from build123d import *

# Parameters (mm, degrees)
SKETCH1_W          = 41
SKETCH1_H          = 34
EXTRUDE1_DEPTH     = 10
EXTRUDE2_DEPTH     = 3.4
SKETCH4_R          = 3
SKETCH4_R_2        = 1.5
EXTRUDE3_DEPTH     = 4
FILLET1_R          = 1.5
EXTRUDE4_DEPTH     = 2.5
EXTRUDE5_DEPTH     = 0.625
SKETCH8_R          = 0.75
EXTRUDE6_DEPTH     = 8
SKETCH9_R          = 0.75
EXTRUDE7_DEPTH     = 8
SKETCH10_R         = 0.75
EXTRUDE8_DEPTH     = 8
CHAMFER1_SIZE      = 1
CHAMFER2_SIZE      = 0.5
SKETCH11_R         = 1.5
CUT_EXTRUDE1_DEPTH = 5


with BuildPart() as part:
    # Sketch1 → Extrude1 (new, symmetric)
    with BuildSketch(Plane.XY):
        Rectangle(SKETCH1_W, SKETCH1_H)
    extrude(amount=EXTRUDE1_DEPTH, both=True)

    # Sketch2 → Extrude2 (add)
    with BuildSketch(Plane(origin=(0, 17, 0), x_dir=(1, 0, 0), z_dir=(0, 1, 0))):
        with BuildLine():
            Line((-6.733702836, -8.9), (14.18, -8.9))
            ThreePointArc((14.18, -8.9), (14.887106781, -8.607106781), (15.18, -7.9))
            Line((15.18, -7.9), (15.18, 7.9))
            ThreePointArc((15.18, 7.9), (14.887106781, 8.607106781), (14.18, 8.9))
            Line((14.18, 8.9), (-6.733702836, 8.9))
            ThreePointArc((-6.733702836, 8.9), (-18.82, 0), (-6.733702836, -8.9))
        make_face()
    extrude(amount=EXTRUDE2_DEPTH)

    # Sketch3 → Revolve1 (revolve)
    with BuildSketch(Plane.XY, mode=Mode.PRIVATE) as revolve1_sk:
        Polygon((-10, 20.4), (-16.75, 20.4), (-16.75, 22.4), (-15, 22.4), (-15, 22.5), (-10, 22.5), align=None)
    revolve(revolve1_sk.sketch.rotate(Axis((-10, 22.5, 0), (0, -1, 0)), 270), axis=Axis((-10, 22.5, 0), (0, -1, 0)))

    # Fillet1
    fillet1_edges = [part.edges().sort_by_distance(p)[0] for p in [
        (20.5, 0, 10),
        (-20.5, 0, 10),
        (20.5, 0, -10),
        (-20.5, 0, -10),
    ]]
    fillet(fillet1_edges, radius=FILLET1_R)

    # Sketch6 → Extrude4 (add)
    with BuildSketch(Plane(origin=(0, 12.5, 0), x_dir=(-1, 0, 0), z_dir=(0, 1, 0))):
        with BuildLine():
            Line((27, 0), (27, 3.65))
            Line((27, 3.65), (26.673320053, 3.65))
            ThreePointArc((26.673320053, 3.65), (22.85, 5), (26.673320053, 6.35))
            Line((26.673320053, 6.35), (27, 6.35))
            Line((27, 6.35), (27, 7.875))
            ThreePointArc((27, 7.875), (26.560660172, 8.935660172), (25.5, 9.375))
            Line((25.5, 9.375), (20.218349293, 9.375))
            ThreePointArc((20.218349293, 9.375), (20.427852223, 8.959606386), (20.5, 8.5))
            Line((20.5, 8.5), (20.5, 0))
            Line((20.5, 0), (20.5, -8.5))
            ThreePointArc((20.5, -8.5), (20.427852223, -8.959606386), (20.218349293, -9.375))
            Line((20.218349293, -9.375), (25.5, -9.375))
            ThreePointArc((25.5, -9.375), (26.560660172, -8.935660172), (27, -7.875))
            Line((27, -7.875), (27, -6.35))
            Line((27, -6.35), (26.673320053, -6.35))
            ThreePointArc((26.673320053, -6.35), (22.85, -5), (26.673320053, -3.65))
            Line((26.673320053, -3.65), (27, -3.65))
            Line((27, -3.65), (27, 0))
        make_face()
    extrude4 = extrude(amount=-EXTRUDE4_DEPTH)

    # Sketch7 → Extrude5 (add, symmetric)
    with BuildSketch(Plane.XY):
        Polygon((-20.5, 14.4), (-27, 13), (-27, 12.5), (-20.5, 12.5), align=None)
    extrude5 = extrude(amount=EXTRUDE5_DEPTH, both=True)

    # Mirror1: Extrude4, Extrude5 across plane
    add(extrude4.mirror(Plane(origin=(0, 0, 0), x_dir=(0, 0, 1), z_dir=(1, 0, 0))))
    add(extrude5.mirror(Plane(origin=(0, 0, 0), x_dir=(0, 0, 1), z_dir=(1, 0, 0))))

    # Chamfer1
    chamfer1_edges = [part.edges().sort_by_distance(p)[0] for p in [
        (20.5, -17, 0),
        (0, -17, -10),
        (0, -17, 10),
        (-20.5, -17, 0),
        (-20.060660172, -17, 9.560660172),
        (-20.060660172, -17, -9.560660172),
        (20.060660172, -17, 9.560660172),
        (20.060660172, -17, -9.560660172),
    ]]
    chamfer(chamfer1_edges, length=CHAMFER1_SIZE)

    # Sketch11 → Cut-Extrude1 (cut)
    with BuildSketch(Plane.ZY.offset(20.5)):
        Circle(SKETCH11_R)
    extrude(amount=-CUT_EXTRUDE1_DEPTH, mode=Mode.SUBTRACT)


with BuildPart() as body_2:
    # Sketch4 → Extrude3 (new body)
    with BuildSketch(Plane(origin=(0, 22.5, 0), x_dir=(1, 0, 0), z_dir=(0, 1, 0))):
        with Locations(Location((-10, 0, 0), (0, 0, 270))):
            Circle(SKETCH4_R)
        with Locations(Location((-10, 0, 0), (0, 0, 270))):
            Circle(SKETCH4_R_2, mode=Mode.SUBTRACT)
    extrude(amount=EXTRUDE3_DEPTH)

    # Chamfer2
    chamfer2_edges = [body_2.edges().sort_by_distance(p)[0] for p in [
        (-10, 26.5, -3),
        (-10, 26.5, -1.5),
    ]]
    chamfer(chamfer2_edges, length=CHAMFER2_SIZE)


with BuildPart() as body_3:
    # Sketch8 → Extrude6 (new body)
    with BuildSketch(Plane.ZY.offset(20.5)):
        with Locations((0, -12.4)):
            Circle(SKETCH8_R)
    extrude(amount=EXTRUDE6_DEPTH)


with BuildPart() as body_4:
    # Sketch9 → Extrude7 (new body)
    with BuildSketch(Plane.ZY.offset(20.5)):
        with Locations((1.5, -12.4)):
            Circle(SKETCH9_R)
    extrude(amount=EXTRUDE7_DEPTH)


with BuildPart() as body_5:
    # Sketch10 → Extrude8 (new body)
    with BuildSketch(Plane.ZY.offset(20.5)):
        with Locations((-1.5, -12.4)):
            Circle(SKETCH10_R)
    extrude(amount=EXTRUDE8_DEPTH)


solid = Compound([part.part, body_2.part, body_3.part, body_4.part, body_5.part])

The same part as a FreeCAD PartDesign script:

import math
import FreeCAD as App
import Part
import Sketcher

V = App.Vector
Q = App.Units.Quantity


def edges_at(feature, points):
    """Names of the edges that pass closest to the given points."""
    edges = feature.Shape.Edges
    near = lambda p: min(range(len(edges)), key=lambda i: edges[i].distToShape(Part.Vertex(*p))[0])
    return sorted({f"Edge{near(p) + 1}" for p in points})


def add_polygon(sketch, points):
    """Adds a closed chain of lines whose ends are joined by coincident constraints."""
    first, n = sketch.GeometryCount, len(points)
    for a, b in zip(points, points[1:] + points[:1]):
        sketch.addGeometry(Part.LineSegment(App.Vector(*a, 0), App.Vector(*b, 0)), False)
    for i in range(n):
        sketch.addConstraint(Sketcher.Constraint("Coincident", first + i, 2, first + (i + 1) % n, 1))

doc = App.newDocument("Part")
body = doc.addObject("PartDesign::Body", "Body")

sketch1 = body.newObject("Sketcher::SketchObject", "Sketch")
sketch1.AttachmentSupport = (doc.getObject("XY_Plane"), [""])
sketch1.MapMode = "FlatFace"
add_polygon(sketch1, [(-20, 17), (-20, -17), (20, -17), (20, 17)])
sketch1.addConstraint(Sketcher.Constraint("Vertical", 0))
sketch1.addConstraint(Sketcher.Constraint("Horizontal", 1))
sketch1.addConstraint(Sketcher.Constraint("Vertical", 2))
sketch1.addConstraint(Sketcher.Constraint("Horizontal", 3))
sketch1.addConstraint(Sketcher.Constraint("Symmetric", 0, 2, 2, 2, -1, 1))
sketch1.addConstraint(Sketcher.Constraint("DistanceX", 1, 1, 1, 2, Q("41 mm")))
sketch1.addConstraint(Sketcher.Constraint("DistanceY", 0, 2, 0, 1, Q("34 mm")))
pad1 = body.newObject("PartDesign::Pad", "Pad")
pad1.Profile = sketch1
pad1.Length = 20
pad1.Midplane = True

sketch2 = body.newObject("Sketcher::SketchObject", "Sketch001")
sketch2.AttachmentSupport = (doc.getObject("XZ_Plane"), [""])
sketch2.MapMode = "FlatFace"
sketch2.AttachmentOffset = App.Placement(V(0, 0, -17), App.Rotation())
sketch2.addGeometry(Part.LineSegment(V(-6.7, 8.9, 0), V(14.2, 8.9, 0)), False)
sketch2.addGeometry(Part.ArcOfCircle(Part.Circle(V(14.2, 7.9, 0), V(0, 0, 1), 1), math.radians(0), math.radians(90)), False)
sketch2.addGeometry(Part.LineSegment(V(15.2, 7.9, 0), V(15.2, -7.9, 0)), False)
sketch2.addGeometry(Part.ArcOfCircle(Part.Circle(V(14.2, -7.9, 0), V(0, 0, 1), 1), math.radians(-90), math.radians(0)), False)
sketch2.addGeometry(Part.LineSegment(V(14.2, -8.9, 0), V(-6.7, -8.9, 0)), False)
sketch2.addGeometry(Part.ArcOfCircle(Part.Circle(V(-9.5, 0, 0), V(0, 0, 1), 9.3), math.radians(73), math.radians(287)), False)
sketch2.addConstraint(Sketcher.Constraint("Tangent", 0, 2, 1, 2))
sketch2.addConstraint(Sketcher.Constraint("Tangent", 1, 1, 2, 1))
sketch2.addConstraint(Sketcher.Constraint("Tangent", 2, 2, 3, 2))
sketch2.addConstraint(Sketcher.Constraint("Tangent", 3, 1, 4, 1))
sketch2.addConstraint(Sketcher.Constraint("Coincident", 4, 2, 5, 2))
sketch2.addConstraint(Sketcher.Constraint("Coincident", 5, 1, 0, 1))
sketch2.addConstraint(Sketcher.Constraint("Horizontal", 0))
sketch2.addConstraint(Sketcher.Constraint("Vertical", 2))
sketch2.addConstraint(Sketcher.Constraint("Horizontal", 4))
sketch2.addConstraint(Sketcher.Constraint("Equal", 1, 3))
sketch2.addConstraint(Sketcher.Constraint("Symmetric", 4, 2, 5, 1, -1))
sketch2.addConstraint(Sketcher.Constraint("Radius", 1, Q("1 mm")))
sketch2.addConstraint(Sketcher.Constraint("Radius", 5, Q("9.32 mm")))
sketch2.addConstraint(Sketcher.Constraint("DistanceY", 2, 2, 2, 1, Q("15.8 mm")))
sketch2.addConstraint(Sketcher.Constraint("DistanceX", 5, 3, -1, 1, Q("9.5 mm")))
sketch2.addConstraint(Sketcher.Constraint("DistanceX", -1, 1, 1, 3, Q("14.18 mm")))
pad2 = body.newObject("PartDesign::Pad", "Pad001")
pad2.Profile = sketch2
pad2.Length = 3.4
pad2.Reversed = True

sketch3 = body.newObject("Sketcher::SketchObject", "Sketch002")
sketch3.AttachmentSupport = (doc.getObject("XY_Plane"), [""])
sketch3.MapMode = "FlatFace"
add_polygon(sketch3, [(-16.75, 20.4), (-10, 20.4), (-10, 22.5), (-15, 22.5), (-15, 22.4), (-16.75, 22.4)])
sketch3.addGeometry(Part.LineSegment(V(-10, 22.5, 0), V(-10, 20.4, 0)), True)
sketch3.addConstraint(Sketcher.Constraint("Horizontal", 0))
sketch3.addConstraint(Sketcher.Constraint("Vertical", 1))
sketch3.addConstraint(Sketcher.Constraint("Horizontal", 2))
sketch3.addConstraint(Sketcher.Constraint("Vertical", 3))
sketch3.addConstraint(Sketcher.Constraint("Horizontal", 4))
sketch3.addConstraint(Sketcher.Constraint("Vertical", 5))
sketch3.addConstraint(Sketcher.Constraint("Vertical", 6))
sketch3.addConstraint(Sketcher.Constraint("Coincident", 6, 1, 1, 2))
sketch3.addConstraint(Sketcher.Constraint("Horizontal", 5, 2, 6, 2))
sketch3.addConstraint(Sketcher.Constraint("DistanceX", 2, 2, 2, 1, Q("5 mm")))
sketch3.addConstraint(Sketcher.Constraint("DistanceY", 5, 2, 5, 1, Q("2 mm")))
sketch3.addConstraint(Sketcher.Constraint("DistanceY", 1, 1, 1, 2, Q("2.1 mm")))
sketch3.addConstraint(Sketcher.Constraint("DistanceX", 0, 2, -1, 1, Q("10 mm")))
sketch3.addConstraint(Sketcher.Constraint("DistanceX", 0, 1, 0, 2, Q("6.75 mm")))
sketch3.addConstraint(Sketcher.Constraint("DistanceY", -1, 1, 0, 2, Q("20.4 mm")))
revolution = body.newObject("PartDesign::Revolution", "Revolution")
revolution.Profile = sketch3
revolution.ReferenceAxis = (sketch3, ["Axis0"])
revolution.Angle = 360
doc.recompute()

fillet = body.newObject("PartDesign::Fillet", "Fillet")
fillet.Base = (revolution, edges_at(revolution, [
    (20.5, 0, 10),
    (-20.5, 0, 10),
    (20.5, 0, -10),
    (-20.5, 0, -10),
]))
fillet.Radius = 1.5

sketch4 = body.newObject("Sketcher::SketchObject", "Sketch003")
sketch4.AttachmentSupport = (doc.getObject("XZ_Plane"), [""])
sketch4.MapMode = "FlatFace"
sketch4.AttachmentOffset = App.Placement(V(0, 0, -12.5), App.Rotation())
sketch4.addGeometry(Part.LineSegment(V(-27, 3.65, 0), V(-26.67, 3.65, 0)), False)
sketch4.addGeometry(Part.ArcOfCircle(Part.Circle(V(-25, 5, 0), V(0, 0, 1), 2.15), math.radians(-141), math.radians(141)), False)
sketch4.addGeometry(Part.LineSegment(V(-26.67, 6.35, 0), V(-27, 6.35, 0)), False)
sketch4.addGeometry(Part.LineSegment(V(-27, 6.35, 0), V(-27, 7.88, 0)), False)
sketch4.addGeometry(Part.ArcOfCircle(Part.Circle(V(-25.5, 7.88, 0), V(0, 0, 1), 1.5), math.radians(90), math.radians(180)), False)
sketch4.addGeometry(Part.LineSegment(V(-25.5, 9.38, 0), V(-20.22, 9.38, 0)), False)
sketch4.addGeometry(Part.ArcOfCircle(Part.Circle(V(-19, 8.5, 0), V(0, 0, 1), 1.5), math.radians(144), math.radians(180)), False)
sketch4.addGeometry(Part.LineSegment(V(-20.5, 8.5, 0), V(-20.5, -8.5, 0)), False)
sketch4.addGeometry(Part.ArcOfCircle(Part.Circle(V(-19, -8.5, 0), V(0, 0, 1), 1.5), math.radians(180), math.radians(216)), False)
sketch4.addGeometry(Part.LineSegment(V(-20.22, -9.38, 0), V(-25.5, -9.38, 0)), False)
sketch4.addGeometry(Part.ArcOfCircle(Part.Circle(V(-25.5, -7.88, 0), V(0, 0, 1), 1.5), math.radians(180), math.radians(270)), False)
sketch4.addGeometry(Part.LineSegment(V(-27, -7.88, 0), V(-27, -6.35, 0)), False)
sketch4.addGeometry(Part.LineSegment(V(-27, -6.35, 0), V(-26.67, -6.35, 0)), False)
sketch4.addGeometry(Part.ArcOfCircle(Part.Circle(V(-25, -5, 0), V(0, 0, 1), 2.15), math.radians(-141), math.radians(141)), False)
sketch4.addGeometry(Part.LineSegment(V(-26.67, -3.65, 0), V(-27, -3.65, 0)), False)
sketch4.addGeometry(Part.LineSegment(V(-27, -3.65, 0), V(-27, 3.65, 0)), False)
sketch4.addConstraint(Sketcher.Constraint("Coincident", 0, 2, 1, 1))
sketch4.addConstraint(Sketcher.Constraint("Coincident", 1, 2, 2, 1))
sketch4.addConstraint(Sketcher.Constraint("Coincident", 2, 2, 3, 1))
sketch4.addConstraint(Sketcher.Constraint("Tangent", 3, 2, 4, 2))
sketch4.addConstraint(Sketcher.Constraint("Tangent", 4, 1, 5, 1))
sketch4.addConstraint(Sketcher.Constraint("Coincident", 5, 2, 6, 1))
sketch4.addConstraint(Sketcher.Constraint("Tangent", 6, 2, 7, 1))
sketch4.addConstraint(Sketcher.Constraint("Tangent", 7, 2, 8, 1))
sketch4.addConstraint(Sketcher.Constraint("Coincident", 8, 2, 9, 1))
sketch4.addConstraint(Sketcher.Constraint("Tangent", 9, 2, 10, 2))
sketch4.addConstraint(Sketcher.Constraint("Tangent", 10, 1, 11, 1))
sketch4.addConstraint(Sketcher.Constraint("Coincident", 11, 2, 12, 1))
sketch4.addConstraint(Sketcher.Constraint("Coincident", 12, 2, 13, 1))
sketch4.addConstraint(Sketcher.Constraint("Coincident", 13, 2, 14, 1))
sketch4.addConstraint(Sketcher.Constraint("Coincident", 14, 2, 15, 1))
sketch4.addConstraint(Sketcher.Constraint("Coincident", 15, 2, 0, 1))
sketch4.addConstraint(Sketcher.Constraint("Horizontal", 0))
sketch4.addConstraint(Sketcher.Constraint("Horizontal", 2))
sketch4.addConstraint(Sketcher.Constraint("Vertical", 3))
sketch4.addConstraint(Sketcher.Constraint("Horizontal", 5))
sketch4.addConstraint(Sketcher.Constraint("Vertical", 7))
sketch4.addConstraint(Sketcher.Constraint("Horizontal", 9))
sketch4.addConstraint(Sketcher.Constraint("Vertical", 11))
sketch4.addConstraint(Sketcher.Constraint("Horizontal", 12))
sketch4.addConstraint(Sketcher.Constraint("Horizontal", 14))
sketch4.addConstraint(Sketcher.Constraint("Vertical", 15))
sketch4.addConstraint(Sketcher.Constraint("Equal", 4, 6))
sketch4.addConstraint(Sketcher.Constraint("Equal", 6, 8))
sketch4.addConstraint(Sketcher.Constraint("Equal", 8, 10))
sketch4.addConstraint(Sketcher.Constraint("Equal", 1, 13))
sketch4.addConstraint(Sketcher.Constraint("Symmetric", 4, 3, 10, 3, -1))
sketch4.addConstraint(Sketcher.Constraint("Symmetric", 1, 3, 13, 3, -1))
sketch4.addConstraint(Sketcher.Constraint("Vertical", 0, 2, 1, 2))
sketch4.addConstraint(Sketcher.Constraint("Vertical", 5, 2, 8, 2))
sketch4.addConstraint(Sketcher.Constraint("Vertical", 1, 2, 12, 2))
sketch4.addConstraint(Sketcher.Constraint("Vertical", 12, 2, 13, 2))
sketch4.addConstraint(Sketcher.Constraint("Vertical", 11, 2, 14, 2))
sketch4.addConstraint(Sketcher.Constraint("Radius", 4, Q("1.5 mm")))
sketch4.addConstraint(Sketcher.Constraint("DistanceY", 7, 2, 7, 1, Q("17 mm")))
sketch4.addConstraint(Sketcher.Constraint("Radius", 1, Q("2.15 mm")))
sketch4.addConstraint(Sketcher.Constraint("DistanceY", 15, 1, 15, 2, Q("7.3 mm")))
sketch4.addConstraint(Sketcher.Constraint("DistanceX", 1, 3, -1, 1, Q("25 mm")))
sketch4.addConstraint(Sketcher.Constraint("DistanceY", -1, 1, 1, 3, Q("5 mm")))
sketch4.addConstraint(Sketcher.Constraint("DistanceX", 6, 3, -1, 1, Q("19 mm")))
sketch4.addConstraint(Sketcher.Constraint("DistanceX", 2, 2, -1, 1, Q("27 mm")))
sketch4.addConstraint(Sketcher.Constraint("DistanceY", 3, 1, 3, 2, Q("1.525 mm")))
pad3 = body.newObject("PartDesign::Pad", "Pad002")
pad3.Profile = sketch4
pad3.Length = 2.5

sketch5 = body.newObject("Sketcher::SketchObject", "Sketch004")
sketch5.AttachmentSupport = (doc.getObject("XY_Plane"), [""])
sketch5.MapMode = "FlatFace"
add_polygon(sketch5, [(-20.5, 14.4), (-27, 13), (-27, 12.5), (-20.5, 12.5)])
sketch5.addConstraint(Sketcher.Constraint("Vertical", 1))
sketch5.addConstraint(Sketcher.Constraint("Horizontal", 2))
sketch5.addConstraint(Sketcher.Constraint("Vertical", 3))
sketch5.addConstraint(Sketcher.Constraint("DistanceX", 2, 1, 2, 2, Q("6.5 mm")))
sketch5.addConstraint(Sketcher.Constraint("DistanceY", 1, 2, 1, 1, Q("0.5 mm")))
sketch5.addConstraint(Sketcher.Constraint("DistanceY", 3, 1, 3, 2, Q("1.9 mm")))
sketch5.addConstraint(Sketcher.Constraint("DistanceX", 0, 2, -1, 1, Q("27 mm")))
sketch5.addConstraint(Sketcher.Constraint("DistanceY", -1, 1, 0, 2, Q("13 mm")))
pad4 = body.newObject("PartDesign::Pad", "Pad003")
pad4.Profile = sketch5
pad4.Length = 1.25
pad4.Midplane = True
doc.recompute()

mirrored = body.newObject("PartDesign::Mirrored", "Mirrored")
mirrored.Originals = [pad3, pad4]
mirrored.MirrorPlane = (doc.getObject("YZ_Plane"), [""])
body.Tip = mirrored
doc.recompute()

chamfer = body.newObject("PartDesign::Chamfer", "Chamfer")
chamfer.Base = (mirrored, edges_at(mirrored, [
    (20.5, -17, 0),
    (0, -17, -10),
    (0, -17, 10),
    (-20.5, -17, 0),
    (-20.061, -17, 9.561),
    (-20.061, -17, -9.561),
    (20.061, -17, 9.561),
    (20.061, -17, -9.561),
]))
chamfer.Size = 1

sketch6 = body.newObject("Sketcher::SketchObject", "Sketch005")
sketch6.AttachmentSupport = (doc.getObject("YZ_Plane"), [""])
sketch6.MapMode = "FlatFace"
sketch6.AttachmentOffset = App.Placement(V(0, 0, -20.5), App.Rotation())
sketch6.addGeometry(Part.Circle(V(0, 0, 0), V(0, 0, 1), 1.5), False)
sketch6.addConstraint(Sketcher.Constraint("Coincident", 0, 3, -1, 1))
sketch6.addConstraint(Sketcher.Constraint("Diameter", 0, Q("3 mm")))
pocket1 = body.newObject("PartDesign::Pocket", "Pocket")
pocket1.Profile = sketch6
pocket1.Length = 5
pocket1.Reversed = True
body2 = doc.addObject("PartDesign::Body", "Body001")

sketch7 = body2.newObject("Sketcher::SketchObject", "Sketch006")
sketch7.AttachmentSupport = (doc.getObject("XZ_Plane001"), [""])
sketch7.MapMode = "FlatFace"
sketch7.AttachmentOffset = App.Placement(V(0, 0, -22.5), App.Rotation())
sketch7.addGeometry(Part.Circle(V(-10, 0, 0), V(0, 0, 1), 3), False)
sketch7.addGeometry(Part.Circle(V(-10, 0, 0), V(0, 0, 1), 1.5), False)
sketch7.addConstraint(Sketcher.Constraint("Coincident", 1, 3, 0, 3))
sketch7.addConstraint(Sketcher.Constraint("PointOnObject", 0, 3, -1))
sketch7.addConstraint(Sketcher.Constraint("Diameter", 0, Q("6 mm")))
sketch7.addConstraint(Sketcher.Constraint("Diameter", 1, Q("3 mm")))
sketch7.addConstraint(Sketcher.Constraint("DistanceX", 0, 3, -1, 1, Q("10 mm")))
pad5 = body2.newObject("PartDesign::Pad", "Pad004")
pad5.Profile = sketch7
pad5.Length = 4
pad5.Reversed = True
doc.recompute()

chamfer2 = body2.newObject("PartDesign::Chamfer", "Chamfer001")
chamfer2.Base = (pad5, edges_at(pad5, [(-10, 26.5, -3), (-10, 26.5, -1.5)]))
chamfer2.Size = 0.5
body3 = doc.addObject("PartDesign::Body", "Body002")

sketch8 = body3.newObject("Sketcher::SketchObject", "Sketch007")
sketch8.AttachmentSupport = (doc.getObject("YZ_Plane002"), [""])
sketch8.MapMode = "FlatFace"
sketch8.AttachmentOffset = App.Placement(V(0, 0, -20.5), App.Rotation())
sketch8.addGeometry(Part.Circle(V(-12.4, 0, 0), V(0, 0, 1), 0.8), False)
sketch8.addConstraint(Sketcher.Constraint("PointOnObject", 0, 3, -1))
sketch8.addConstraint(Sketcher.Constraint("Diameter", 0, Q("1.5 mm")))
sketch8.addConstraint(Sketcher.Constraint("DistanceX", 0, 3, -1, 1, Q("12.4 mm")))
pad6 = body3.newObject("PartDesign::Pad", "Pad005")
pad6.Profile = sketch8
pad6.Length = 8
pad6.Reversed = True
body4 = doc.addObject("PartDesign::Body", "Body003")

sketch9 = body4.newObject("Sketcher::SketchObject", "Sketch008")
sketch9.AttachmentSupport = (doc.getObject("YZ_Plane003"), [""])
sketch9.MapMode = "FlatFace"
sketch9.AttachmentOffset = App.Placement(V(0, 0, -20.5), App.Rotation())
sketch9.addGeometry(Part.Circle(V(-12.4, 1.5, 0), V(0, 0, 1), 0.8), False)
sketch9.addConstraint(Sketcher.Constraint("Diameter", 0, Q("1.5 mm")))
sketch9.addConstraint(Sketcher.Constraint("DistanceX", 0, 3, -1, 1, Q("12.4 mm")))
sketch9.addConstraint(Sketcher.Constraint("DistanceY", -1, 1, 0, 3, Q("1.5 mm")))
pad7 = body4.newObject("PartDesign::Pad", "Pad006")
pad7.Profile = sketch9
pad7.Length = 8
pad7.Reversed = True
body5 = doc.addObject("PartDesign::Body", "Body004")

sketch10 = body5.newObject("Sketcher::SketchObject", "Sketch009")
sketch10.AttachmentSupport = (doc.getObject("YZ_Plane004"), [""])
sketch10.MapMode = "FlatFace"
sketch10.AttachmentOffset = App.Placement(V(0, 0, -20.5), App.Rotation())
sketch10.addGeometry(Part.Circle(V(-12.4, -1.5, 0), V(0, 0, 1), 0.8), False)
sketch10.addConstraint(Sketcher.Constraint("Diameter", 0, Q("1.5 mm")))
sketch10.addConstraint(Sketcher.Constraint("DistanceX", 0, 3, -1, 1, Q("12.4 mm")))
sketch10.addConstraint(Sketcher.Constraint("DistanceY", 0, 3, -1, 1, Q("1.5 mm")))
pad8 = body5.newObject("PartDesign::Pad", "Pad007")
pad8.Profile = sketch10
pad8.Length = 8
pad8.Reversed = True

doc.recompute()
